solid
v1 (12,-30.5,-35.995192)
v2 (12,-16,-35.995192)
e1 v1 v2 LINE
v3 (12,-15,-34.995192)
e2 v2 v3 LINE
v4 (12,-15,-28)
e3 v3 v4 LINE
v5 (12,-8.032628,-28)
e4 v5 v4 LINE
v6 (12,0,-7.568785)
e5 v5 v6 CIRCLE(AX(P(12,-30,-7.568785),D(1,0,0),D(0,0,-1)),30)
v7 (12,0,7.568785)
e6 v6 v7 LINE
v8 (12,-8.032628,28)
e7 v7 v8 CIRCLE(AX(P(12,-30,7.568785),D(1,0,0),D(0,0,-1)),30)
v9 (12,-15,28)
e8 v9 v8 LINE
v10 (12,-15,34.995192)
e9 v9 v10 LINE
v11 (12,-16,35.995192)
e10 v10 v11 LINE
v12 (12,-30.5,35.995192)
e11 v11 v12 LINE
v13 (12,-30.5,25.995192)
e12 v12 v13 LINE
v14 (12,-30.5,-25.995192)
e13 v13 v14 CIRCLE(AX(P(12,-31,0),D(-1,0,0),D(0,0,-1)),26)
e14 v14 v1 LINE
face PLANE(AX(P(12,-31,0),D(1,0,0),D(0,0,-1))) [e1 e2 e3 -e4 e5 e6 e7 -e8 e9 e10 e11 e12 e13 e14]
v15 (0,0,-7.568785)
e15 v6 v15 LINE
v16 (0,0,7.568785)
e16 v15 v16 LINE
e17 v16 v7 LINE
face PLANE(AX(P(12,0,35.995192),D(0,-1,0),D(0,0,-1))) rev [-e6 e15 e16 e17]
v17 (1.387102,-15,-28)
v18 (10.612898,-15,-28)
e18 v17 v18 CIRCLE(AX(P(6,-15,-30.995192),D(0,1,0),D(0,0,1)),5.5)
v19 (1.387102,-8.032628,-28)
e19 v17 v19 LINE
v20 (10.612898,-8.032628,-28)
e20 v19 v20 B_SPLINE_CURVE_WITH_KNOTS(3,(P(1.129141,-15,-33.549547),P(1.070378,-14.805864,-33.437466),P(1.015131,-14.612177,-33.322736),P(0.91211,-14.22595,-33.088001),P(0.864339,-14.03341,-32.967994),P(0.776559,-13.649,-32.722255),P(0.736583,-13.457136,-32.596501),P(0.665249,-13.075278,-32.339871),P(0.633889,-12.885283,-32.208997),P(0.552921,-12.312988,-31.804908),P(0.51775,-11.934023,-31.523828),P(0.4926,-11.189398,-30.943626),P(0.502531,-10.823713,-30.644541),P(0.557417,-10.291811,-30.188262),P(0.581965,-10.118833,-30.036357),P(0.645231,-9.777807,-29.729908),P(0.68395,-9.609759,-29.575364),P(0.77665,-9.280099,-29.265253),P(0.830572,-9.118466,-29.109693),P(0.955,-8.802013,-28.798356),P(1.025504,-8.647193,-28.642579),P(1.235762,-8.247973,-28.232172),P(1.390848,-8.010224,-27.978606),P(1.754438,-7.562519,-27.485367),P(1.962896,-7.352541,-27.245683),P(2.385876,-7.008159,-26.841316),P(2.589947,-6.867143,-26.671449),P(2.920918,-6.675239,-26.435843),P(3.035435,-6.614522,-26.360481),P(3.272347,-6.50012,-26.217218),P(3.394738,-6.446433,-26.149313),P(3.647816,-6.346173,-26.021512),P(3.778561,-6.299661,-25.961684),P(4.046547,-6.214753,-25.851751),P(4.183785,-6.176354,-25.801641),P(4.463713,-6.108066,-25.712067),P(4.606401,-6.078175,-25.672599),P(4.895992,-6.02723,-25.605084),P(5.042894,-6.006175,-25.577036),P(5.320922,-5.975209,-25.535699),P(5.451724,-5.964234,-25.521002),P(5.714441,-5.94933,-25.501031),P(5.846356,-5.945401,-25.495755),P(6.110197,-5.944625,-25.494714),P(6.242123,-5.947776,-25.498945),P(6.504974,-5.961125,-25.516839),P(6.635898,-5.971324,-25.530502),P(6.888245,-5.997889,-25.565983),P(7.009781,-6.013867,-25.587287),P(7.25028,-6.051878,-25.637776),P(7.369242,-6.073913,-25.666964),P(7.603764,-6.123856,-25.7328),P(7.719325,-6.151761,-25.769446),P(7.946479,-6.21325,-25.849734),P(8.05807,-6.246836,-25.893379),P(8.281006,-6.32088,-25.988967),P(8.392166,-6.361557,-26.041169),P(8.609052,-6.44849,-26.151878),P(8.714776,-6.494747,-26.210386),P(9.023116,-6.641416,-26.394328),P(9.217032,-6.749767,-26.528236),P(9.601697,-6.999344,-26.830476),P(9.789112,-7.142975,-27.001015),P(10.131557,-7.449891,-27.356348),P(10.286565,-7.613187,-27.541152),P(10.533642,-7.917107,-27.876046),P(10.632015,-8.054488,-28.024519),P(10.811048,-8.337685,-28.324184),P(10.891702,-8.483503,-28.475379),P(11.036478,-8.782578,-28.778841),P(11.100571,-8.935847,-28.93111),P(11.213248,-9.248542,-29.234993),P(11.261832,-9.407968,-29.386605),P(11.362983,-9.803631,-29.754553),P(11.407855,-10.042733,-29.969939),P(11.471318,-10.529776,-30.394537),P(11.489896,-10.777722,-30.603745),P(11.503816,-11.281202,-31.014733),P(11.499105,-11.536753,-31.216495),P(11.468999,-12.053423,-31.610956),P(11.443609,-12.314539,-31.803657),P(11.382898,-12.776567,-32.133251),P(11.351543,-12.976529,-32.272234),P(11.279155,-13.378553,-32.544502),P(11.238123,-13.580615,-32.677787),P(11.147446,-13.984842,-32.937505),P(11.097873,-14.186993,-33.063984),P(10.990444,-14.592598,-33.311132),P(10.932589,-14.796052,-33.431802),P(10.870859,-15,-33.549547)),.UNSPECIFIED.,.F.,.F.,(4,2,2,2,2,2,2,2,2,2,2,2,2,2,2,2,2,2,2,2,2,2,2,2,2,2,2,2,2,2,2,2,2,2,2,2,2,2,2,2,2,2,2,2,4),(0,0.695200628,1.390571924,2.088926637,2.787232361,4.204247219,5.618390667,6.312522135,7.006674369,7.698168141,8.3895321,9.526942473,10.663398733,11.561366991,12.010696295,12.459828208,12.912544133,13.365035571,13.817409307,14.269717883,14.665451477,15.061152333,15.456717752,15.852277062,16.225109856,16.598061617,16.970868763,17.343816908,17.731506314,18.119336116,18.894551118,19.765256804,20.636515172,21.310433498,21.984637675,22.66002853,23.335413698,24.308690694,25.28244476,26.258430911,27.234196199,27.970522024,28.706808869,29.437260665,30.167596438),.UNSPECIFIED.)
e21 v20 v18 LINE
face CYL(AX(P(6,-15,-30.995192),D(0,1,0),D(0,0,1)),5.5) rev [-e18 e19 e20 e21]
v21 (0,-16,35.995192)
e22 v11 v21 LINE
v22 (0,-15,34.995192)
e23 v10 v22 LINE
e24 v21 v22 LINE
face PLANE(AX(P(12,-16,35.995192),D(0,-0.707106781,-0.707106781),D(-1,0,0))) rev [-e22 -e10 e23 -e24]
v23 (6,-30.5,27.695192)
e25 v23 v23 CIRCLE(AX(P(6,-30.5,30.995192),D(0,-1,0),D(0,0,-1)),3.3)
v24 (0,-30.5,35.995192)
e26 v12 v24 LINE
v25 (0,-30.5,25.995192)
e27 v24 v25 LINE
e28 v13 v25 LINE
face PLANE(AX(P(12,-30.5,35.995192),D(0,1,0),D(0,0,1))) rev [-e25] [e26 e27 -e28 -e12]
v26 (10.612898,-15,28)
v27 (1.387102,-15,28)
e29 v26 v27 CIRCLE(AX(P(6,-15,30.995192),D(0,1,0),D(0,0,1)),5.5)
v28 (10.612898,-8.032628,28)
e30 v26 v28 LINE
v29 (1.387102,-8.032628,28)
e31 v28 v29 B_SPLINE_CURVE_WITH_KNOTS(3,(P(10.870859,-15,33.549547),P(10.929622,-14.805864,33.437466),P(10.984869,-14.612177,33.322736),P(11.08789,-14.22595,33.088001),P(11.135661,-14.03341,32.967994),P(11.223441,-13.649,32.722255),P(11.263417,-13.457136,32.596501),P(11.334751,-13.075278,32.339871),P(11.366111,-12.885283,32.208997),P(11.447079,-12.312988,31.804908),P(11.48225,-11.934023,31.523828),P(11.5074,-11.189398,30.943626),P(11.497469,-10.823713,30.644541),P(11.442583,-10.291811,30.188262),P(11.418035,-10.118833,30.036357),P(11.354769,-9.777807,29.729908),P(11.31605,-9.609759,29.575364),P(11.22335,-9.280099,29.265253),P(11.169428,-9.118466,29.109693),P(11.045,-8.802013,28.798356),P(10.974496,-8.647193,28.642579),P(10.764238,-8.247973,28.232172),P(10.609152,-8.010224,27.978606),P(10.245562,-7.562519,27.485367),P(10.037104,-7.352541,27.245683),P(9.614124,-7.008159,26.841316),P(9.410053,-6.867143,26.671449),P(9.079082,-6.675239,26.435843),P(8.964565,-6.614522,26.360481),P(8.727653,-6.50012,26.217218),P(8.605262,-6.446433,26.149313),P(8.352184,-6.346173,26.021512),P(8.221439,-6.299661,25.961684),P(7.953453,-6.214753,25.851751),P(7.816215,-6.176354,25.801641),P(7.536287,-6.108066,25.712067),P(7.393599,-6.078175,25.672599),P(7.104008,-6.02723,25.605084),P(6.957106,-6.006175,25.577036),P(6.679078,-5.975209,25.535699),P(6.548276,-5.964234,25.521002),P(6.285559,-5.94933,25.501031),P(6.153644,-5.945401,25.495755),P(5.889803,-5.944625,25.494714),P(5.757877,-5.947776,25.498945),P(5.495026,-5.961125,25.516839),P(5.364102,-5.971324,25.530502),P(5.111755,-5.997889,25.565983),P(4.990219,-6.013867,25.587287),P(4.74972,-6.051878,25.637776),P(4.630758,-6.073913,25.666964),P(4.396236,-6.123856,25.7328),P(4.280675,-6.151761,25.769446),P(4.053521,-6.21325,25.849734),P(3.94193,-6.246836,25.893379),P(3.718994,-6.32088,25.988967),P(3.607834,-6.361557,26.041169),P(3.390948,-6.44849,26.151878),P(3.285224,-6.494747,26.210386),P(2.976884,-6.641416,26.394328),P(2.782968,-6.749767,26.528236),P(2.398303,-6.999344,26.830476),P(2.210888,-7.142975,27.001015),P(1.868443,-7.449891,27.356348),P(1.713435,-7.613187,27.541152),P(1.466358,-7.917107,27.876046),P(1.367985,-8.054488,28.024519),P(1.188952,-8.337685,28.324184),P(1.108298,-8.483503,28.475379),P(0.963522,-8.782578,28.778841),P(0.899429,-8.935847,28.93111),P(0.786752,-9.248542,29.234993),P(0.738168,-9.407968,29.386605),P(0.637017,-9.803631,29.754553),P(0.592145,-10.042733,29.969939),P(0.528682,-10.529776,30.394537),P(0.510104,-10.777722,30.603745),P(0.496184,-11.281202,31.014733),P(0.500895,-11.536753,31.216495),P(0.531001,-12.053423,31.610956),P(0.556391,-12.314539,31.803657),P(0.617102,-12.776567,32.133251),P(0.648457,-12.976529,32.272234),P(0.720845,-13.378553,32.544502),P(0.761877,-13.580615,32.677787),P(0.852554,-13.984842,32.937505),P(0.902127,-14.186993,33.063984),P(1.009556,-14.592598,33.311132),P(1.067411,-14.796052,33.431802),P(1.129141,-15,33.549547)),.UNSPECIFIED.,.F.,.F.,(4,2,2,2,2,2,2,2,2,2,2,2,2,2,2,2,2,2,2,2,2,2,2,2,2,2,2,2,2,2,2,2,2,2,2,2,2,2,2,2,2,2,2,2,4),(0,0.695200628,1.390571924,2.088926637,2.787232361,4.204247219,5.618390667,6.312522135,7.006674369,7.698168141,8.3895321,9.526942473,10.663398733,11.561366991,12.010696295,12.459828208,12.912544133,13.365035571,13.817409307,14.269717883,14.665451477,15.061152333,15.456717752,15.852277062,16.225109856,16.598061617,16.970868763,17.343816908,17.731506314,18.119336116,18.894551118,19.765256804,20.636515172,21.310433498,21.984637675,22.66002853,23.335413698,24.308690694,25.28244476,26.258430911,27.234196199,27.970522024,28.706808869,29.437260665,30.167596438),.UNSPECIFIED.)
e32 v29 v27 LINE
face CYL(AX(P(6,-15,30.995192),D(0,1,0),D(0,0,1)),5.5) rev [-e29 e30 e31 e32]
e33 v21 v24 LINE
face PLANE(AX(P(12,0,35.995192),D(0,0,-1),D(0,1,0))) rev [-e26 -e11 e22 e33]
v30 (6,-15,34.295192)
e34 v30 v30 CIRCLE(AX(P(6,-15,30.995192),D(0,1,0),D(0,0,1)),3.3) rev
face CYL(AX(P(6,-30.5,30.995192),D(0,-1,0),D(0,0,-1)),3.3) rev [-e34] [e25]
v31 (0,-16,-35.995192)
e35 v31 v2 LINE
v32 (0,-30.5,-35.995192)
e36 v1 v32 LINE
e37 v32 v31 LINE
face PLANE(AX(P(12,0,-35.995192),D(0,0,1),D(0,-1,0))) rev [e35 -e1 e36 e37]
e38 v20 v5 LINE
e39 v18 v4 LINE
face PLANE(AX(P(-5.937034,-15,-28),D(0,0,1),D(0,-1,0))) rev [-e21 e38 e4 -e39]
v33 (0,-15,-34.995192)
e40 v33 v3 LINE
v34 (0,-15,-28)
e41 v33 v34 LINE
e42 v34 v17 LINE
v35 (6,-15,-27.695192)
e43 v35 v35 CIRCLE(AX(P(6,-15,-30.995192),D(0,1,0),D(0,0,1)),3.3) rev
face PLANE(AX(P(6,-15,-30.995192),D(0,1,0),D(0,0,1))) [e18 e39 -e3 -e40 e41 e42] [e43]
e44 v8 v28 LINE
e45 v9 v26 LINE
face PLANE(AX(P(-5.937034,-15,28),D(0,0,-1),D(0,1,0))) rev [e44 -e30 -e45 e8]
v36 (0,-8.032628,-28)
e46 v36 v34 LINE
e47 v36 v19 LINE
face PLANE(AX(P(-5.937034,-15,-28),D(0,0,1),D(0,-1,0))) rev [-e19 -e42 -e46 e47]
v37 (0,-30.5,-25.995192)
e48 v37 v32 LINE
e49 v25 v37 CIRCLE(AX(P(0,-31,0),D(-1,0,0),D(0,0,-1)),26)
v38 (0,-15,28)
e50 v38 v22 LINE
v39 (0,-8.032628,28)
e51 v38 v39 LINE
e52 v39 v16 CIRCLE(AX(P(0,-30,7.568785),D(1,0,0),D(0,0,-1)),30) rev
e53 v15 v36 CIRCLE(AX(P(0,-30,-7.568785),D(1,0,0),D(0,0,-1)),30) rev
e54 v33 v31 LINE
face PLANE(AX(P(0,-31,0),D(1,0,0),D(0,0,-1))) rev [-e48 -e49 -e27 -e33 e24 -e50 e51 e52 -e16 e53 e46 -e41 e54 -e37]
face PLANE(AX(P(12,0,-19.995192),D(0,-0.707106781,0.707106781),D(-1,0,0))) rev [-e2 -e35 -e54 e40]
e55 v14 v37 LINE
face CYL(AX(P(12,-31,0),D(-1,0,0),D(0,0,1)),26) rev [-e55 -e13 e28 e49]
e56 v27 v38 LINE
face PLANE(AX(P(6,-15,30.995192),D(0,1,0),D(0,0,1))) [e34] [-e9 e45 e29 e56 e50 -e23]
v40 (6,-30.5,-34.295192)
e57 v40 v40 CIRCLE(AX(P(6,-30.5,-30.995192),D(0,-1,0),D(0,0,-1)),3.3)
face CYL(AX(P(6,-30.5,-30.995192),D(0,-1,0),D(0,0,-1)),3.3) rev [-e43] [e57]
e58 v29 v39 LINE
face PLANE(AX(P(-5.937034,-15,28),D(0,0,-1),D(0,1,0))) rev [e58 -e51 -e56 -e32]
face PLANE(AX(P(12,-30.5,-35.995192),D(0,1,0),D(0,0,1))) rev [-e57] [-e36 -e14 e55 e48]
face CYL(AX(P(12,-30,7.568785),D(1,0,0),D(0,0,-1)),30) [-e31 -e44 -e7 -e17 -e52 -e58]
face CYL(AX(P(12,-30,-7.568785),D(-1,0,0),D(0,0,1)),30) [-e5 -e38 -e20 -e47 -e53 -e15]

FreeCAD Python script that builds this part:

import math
import FreeCAD as App
import Part
import Sketcher
from FreeCAD import Vector


def edges_at(feature, points):
    """Names of the edges that pass closest to the given points."""
    edges = feature.Shape.Edges
    near = lambda p: min(range(len(edges)), key=lambda i: edges[i].distToShape(Part.Vertex(*p))[0])
    return sorted({f"Edge{near(p) + 1}" for p in points})

doc = App.newDocument("Part")
params = doc.addObject("Spreadsheet::Sheet", "Params")
for row, (alias, value) in enumerate([
    ("sketch1_radius", "26 mm"),
    ("sketch1_height", "10 mm"),
    ("sketch1_width", "30.5 mm"),
    ("pad1_length", "12 mm"),
    ("chamfer_size", "16 mm"),
    ("fillet_radius", "30 mm"),
    ("sketch2_diameter", "6.6 mm"),
    ("hole_diameter", "6.6 mm"),
    ("sketch3_diameter", "11 mm"),
    ("pocket1_length", "15 mm"),
    ("pocket2_length", "15 mm"),
], start=1):
    params.set(f"A{row}", alias)
    params.set(f"B{row}", "=" + value)
    params.setAlias(f"B{row}", alias)

body = doc.addObject("PartDesign::Body", "Body")

sketch1 = doc.addObject("Sketcher::SketchObject", "Sketch")
body.addObject(sketch1)
sketch1.AttachmentSupport = (doc.YZ_Plane, [""])
sketch1.MapMode = "FlatFace"
sketch1.addGeometry(Part.LineSegment(Vector(0, -35.995192, 0), Vector(0, 35.995192, 0)), False)
sketch1.addGeometry(Part.LineSegment(Vector(0, 35.995192, 0), Vector(-30.5, 35.995192, 0)), False)
sketch1.addGeometry(Part.LineSegment(Vector(-30.5, 35.995192, 0), Vector(-30.5, 25.995192, 0)), False)
sketch1.addGeometry(Part.ArcOfCircle(Part.Circle(Vector(-31, 0, 0), Vector(0, 0, 1), 26), math.radians(-88.89809), math.radians(88.89809)), False)
sketch1.addGeometry(Part.LineSegment(Vector(-30.5, -25.995192, 0), Vector(-30.5, -35.995192, 0)), False)
sketch1.addGeometry(Part.LineSegment(Vector(-30.5, -35.995192, 0), Vector(0, -35.995192, 0)), False)
sketch1.addConstraint(Sketcher.Constraint("Coincident", 0, 2, 1, 1))
sketch1.addConstraint(Sketcher.Constraint("Coincident", 1, 2, 2, 1))
sketch1.addConstraint(Sketcher.Constraint("Coincident", 2, 2, 3, 2))
sketch1.addConstraint(Sketcher.Constraint("Coincident", 3, 1, 4, 1))
sketch1.addConstraint(Sketcher.Constraint("Coincident", 4, 2, 5, 1))
sketch1.addConstraint(Sketcher.Constraint("Coincident", 5, 2, 0, 1))
sketch1.addConstraint(Sketcher.Constraint("Vertical", 0))
sketch1.addConstraint(Sketcher.Constraint("Horizontal", 1))
sketch1.addConstraint(Sketcher.Constraint("Vertical", 2))
sketch1.addConstraint(Sketcher.Constraint("Vertical", 4))
sketch1.addConstraint(Sketcher.Constraint("Horizontal", 5))
sketch1.addConstraint(Sketcher.Constraint("Symmetric", 0, 2, 5, 2, -1, 1))
sketch1.addConstraint(Sketcher.Constraint("Symmetric", 2, 2, 3, 1, -1))
sketch1.addConstraint(Sketcher.Constraint("Radius", 3, 26.0))
sketch1.addConstraint(Sketcher.Constraint("DistanceY", 2, 2, 2, 1, 10.0))
sketch1.addConstraint(Sketcher.Constraint("DistanceX", 1, 2, 1, 1, 30.5))
sketch1.addConstraint(Sketcher.Constraint("DistanceX", 3, 3, -1, 1, 31.0))
sketch1.setExpression("Constraints[13]", "Params.sketch1_radius")
sketch1.setExpression("Constraints[14]", "Params.sketch1_height")
sketch1.setExpression("Constraints[15]", "Params.sketch1_width")
pad1 = doc.addObject("PartDesign::Pad", "Pad")
body.addObject(pad1)
pad1.Profile = sketch1
pad1.setExpression("Length", "Params.pad1_length")
doc.recompute()

chamfer = doc.addObject("PartDesign::Chamfer", "Chamfer")
body.addObject(chamfer)
chamfer.Base = (pad1, edges_at(pad1, [(6, 0, 35.995), (6, 0, -35.995)]))
chamfer.setExpression("Size", "Params.chamfer_size")
doc.recompute()

fillet = doc.addObject("PartDesign::Fillet", "Fillet")
body.addObject(fillet)
fillet.Base = (chamfer, edges_at(chamfer, [(6, 0, 19.995), (6, 0, -19.995)]))
fillet.setExpression("Radius", "Params.fillet_radius")

sketch2 = doc.addObject("Sketcher::SketchObject", "Sketch001")
body.addObject(sketch2)
sketch2.AttachmentSupport = (doc.XZ_Plane, [""])
sketch2.MapMode = "FlatFace"
sketch2.AttachmentOffset = App.Placement(Vector(0, 0, 30.5), App.Rotation())
sketch2.addGeometry(Part.Circle(Vector(6, 30.995192, 0), Vector(0, 0, 1), 3.3), False)
sketch2.addGeometry(Part.Circle(Vector(6, -30.995192, 0), Vector(0, 0, 1), 3.3), False)
sketch2.addConstraint(Sketcher.Constraint("Equal", 0, 1))
sketch2.addConstraint(Sketcher.Constraint("Symmetric", 0, 3, 1, 3, -1))
sketch2.addConstraint(Sketcher.Constraint("Diameter", 0, 6.6))
sketch2.addConstraint(Sketcher.Constraint("DistanceX", -1, 1, 0, 3, 6.0))
sketch2.addConstraint(Sketcher.Constraint("DistanceY", -1, 1, 0, 3, 30.995192))
sketch2.setExpression("Constraints[2]", "Params.sketch2_diameter")
doc.recompute()
hole = doc.addObject("PartDesign::Hole", "Hole")
body.addObject(hole)
hole.Profile = sketch2
hole.ThreadType = "None"
hole.setExpression("Diameter", "Params.hole_diameter")
hole.DepthType = "ThroughAll"

sketch3 = doc.addObject("Sketcher::SketchObject", "Sketch002")
body.addObject(sketch3)
sketch3.AttachmentSupport = (doc.XZ_Plane, [""])
sketch3.MapMode = "FlatFace"
sketch3.addGeometry(Part.Circle(Vector(6, 30.995192, 0), Vector(0, 0, 1), 5.5), False)
sketch3.addGeometry(Part.Circle(Vector(6, -30.995192, 0), Vector(0, 0, 1), 5.5), False)
sketch3.addConstraint(Sketcher.Constraint("Equal", 0, 1))
sketch3.addConstraint(Sketcher.Constraint("Symmetric", 0, 3, 1, 3, -1))
sketch3.addConstraint(Sketcher.Constraint("Diameter", 0, 11.0))
sketch3.addConstraint(Sketcher.Constraint("DistanceX", -1, 1, 0, 3, 6.0))
sketch3.addConstraint(Sketcher.Constraint("DistanceY", -1, 1, 0, 3, 30.995192))
sketch3.setExpression("Constraints[2]", "Params.sketch3_diameter")
pocket1 = doc.addObject("PartDesign::Pocket", "Pocket")
body.addObject(pocket1)
pocket1.Profile = sketch3
pocket1.setExpression("Length", "Params.pocket1_length")
pocket1.Reversed = True

sketch4 = doc.addObject("Sketcher::SketchObject", "Sketch003")
body.addObject(sketch4)
sketch4.AttachmentSupport = (doc.XZ_Plane, [""])
sketch4.MapMode = "FlatFace"
sketch4.addGeometry(Part.LineSegment(Vector(-5.937034, 28, 0), Vector(-5.937034, 40.946874, 0)), False)
sketch4.addGeometry(Part.LineSegment(Vector(-5.937034, 40.946874, 0), Vector(17.937034, 40.946874, 0)), False)
sketch4.addGeometry(Part.LineSegment(Vector(17.937034, 40.946874, 0), Vector(17.937034, 28, 0)), False)
sketch4.addGeometry(Part.LineSegment(Vector(17.937034, 28, 0), Vector(-5.937034, 28, 0)), False)
sketch4.addGeometry(Part.LineSegment(Vector(-5.937034, -40.946874, 0), Vector(-5.937034, -28, 0)), False)
sketch4.addGeometry(Part.LineSegment(Vector(-5.937034, -28, 0), Vector(17.937034, -28, 0)), False)
sketch4.addGeometry(Part.LineSegment(Vector(17.937034, -28, 0), Vector(17.937034, -40.946874, 0)), False)
sketch4.addGeometry(Part.LineSegment(Vector(17.937034, -40.946874, 0), Vector(-5.937034, -40.946874, 0)), False)
sketch4.addConstraint(Sketcher.Constraint("Coincident", 0, 2, 1, 1))
sketch4.addConstraint(Sketcher.Constraint("Coincident", 1, 2, 2, 1))
sketch4.addConstraint(Sketcher.Constraint("Coincident", 2, 2, 3, 1))
sketch4.addConstraint(Sketcher.Constraint("Coincident", 3, 2, 0, 1))
sketch4.addConstraint(Sketcher.Constraint("Coincident", 4, 2, 5, 1))
sketch4.addConstraint(Sketcher.Constraint("Coincident", 5, 2, 6, 1))
sketch4.addConstraint(Sketcher.Constraint("Coincident", 6, 2, 7, 1))
sketch4.addConstraint(Sketcher.Constraint("Coincident", 7, 2, 4, 1))
sketch4.addConstraint(Sketcher.Constraint("Vertical", 0))
sketch4.addConstraint(Sketcher.Constraint("Horizontal", 1))
sketch4.addConstraint(Sketcher.Constraint("Vertical", 2))
sketch4.addConstraint(Sketcher.Constraint("Horizontal", 3))
sketch4.addConstraint(Sketcher.Constraint("Vertical", 4))
sketch4.addConstraint(Sketcher.Constraint("Horizontal", 5))
sketch4.addConstraint(Sketcher.Constraint("Vertical", 6))
sketch4.addConstraint(Sketcher.Constraint("Horizontal", 7))
sketch4.addConstraint(Sketcher.Constraint("Symmetric", 3, 2, 4, 2, -1))
sketch4.addConstraint(Sketcher.Constraint("Symmetric", 1, 2, 6, 2, -1))
sketch4.addConstraint(Sketcher.Constraint("DistanceY", -1, 1, 2, 2, 28.0))
sketch4.addConstraint(Sketcher.Constraint("DistanceX", 1, 1, 1, 2, 23.874069))
sketch4.addConstraint(Sketcher.Constraint("DistanceY", 0, 1, 0, 2, 12.946874))
sketch4.addConstraint(Sketcher.Constraint("DistanceX", 0, 2, -1, 1, 5.937034))
pocket2 = doc.addObject("PartDesign::Pocket", "Pocket001")
body.addObject(pocket2)
pocket2.Profile = sketch4
pocket2.setExpression("Length", "Params.pocket2_length")
pocket2.Reversed = True

doc.recompute()
